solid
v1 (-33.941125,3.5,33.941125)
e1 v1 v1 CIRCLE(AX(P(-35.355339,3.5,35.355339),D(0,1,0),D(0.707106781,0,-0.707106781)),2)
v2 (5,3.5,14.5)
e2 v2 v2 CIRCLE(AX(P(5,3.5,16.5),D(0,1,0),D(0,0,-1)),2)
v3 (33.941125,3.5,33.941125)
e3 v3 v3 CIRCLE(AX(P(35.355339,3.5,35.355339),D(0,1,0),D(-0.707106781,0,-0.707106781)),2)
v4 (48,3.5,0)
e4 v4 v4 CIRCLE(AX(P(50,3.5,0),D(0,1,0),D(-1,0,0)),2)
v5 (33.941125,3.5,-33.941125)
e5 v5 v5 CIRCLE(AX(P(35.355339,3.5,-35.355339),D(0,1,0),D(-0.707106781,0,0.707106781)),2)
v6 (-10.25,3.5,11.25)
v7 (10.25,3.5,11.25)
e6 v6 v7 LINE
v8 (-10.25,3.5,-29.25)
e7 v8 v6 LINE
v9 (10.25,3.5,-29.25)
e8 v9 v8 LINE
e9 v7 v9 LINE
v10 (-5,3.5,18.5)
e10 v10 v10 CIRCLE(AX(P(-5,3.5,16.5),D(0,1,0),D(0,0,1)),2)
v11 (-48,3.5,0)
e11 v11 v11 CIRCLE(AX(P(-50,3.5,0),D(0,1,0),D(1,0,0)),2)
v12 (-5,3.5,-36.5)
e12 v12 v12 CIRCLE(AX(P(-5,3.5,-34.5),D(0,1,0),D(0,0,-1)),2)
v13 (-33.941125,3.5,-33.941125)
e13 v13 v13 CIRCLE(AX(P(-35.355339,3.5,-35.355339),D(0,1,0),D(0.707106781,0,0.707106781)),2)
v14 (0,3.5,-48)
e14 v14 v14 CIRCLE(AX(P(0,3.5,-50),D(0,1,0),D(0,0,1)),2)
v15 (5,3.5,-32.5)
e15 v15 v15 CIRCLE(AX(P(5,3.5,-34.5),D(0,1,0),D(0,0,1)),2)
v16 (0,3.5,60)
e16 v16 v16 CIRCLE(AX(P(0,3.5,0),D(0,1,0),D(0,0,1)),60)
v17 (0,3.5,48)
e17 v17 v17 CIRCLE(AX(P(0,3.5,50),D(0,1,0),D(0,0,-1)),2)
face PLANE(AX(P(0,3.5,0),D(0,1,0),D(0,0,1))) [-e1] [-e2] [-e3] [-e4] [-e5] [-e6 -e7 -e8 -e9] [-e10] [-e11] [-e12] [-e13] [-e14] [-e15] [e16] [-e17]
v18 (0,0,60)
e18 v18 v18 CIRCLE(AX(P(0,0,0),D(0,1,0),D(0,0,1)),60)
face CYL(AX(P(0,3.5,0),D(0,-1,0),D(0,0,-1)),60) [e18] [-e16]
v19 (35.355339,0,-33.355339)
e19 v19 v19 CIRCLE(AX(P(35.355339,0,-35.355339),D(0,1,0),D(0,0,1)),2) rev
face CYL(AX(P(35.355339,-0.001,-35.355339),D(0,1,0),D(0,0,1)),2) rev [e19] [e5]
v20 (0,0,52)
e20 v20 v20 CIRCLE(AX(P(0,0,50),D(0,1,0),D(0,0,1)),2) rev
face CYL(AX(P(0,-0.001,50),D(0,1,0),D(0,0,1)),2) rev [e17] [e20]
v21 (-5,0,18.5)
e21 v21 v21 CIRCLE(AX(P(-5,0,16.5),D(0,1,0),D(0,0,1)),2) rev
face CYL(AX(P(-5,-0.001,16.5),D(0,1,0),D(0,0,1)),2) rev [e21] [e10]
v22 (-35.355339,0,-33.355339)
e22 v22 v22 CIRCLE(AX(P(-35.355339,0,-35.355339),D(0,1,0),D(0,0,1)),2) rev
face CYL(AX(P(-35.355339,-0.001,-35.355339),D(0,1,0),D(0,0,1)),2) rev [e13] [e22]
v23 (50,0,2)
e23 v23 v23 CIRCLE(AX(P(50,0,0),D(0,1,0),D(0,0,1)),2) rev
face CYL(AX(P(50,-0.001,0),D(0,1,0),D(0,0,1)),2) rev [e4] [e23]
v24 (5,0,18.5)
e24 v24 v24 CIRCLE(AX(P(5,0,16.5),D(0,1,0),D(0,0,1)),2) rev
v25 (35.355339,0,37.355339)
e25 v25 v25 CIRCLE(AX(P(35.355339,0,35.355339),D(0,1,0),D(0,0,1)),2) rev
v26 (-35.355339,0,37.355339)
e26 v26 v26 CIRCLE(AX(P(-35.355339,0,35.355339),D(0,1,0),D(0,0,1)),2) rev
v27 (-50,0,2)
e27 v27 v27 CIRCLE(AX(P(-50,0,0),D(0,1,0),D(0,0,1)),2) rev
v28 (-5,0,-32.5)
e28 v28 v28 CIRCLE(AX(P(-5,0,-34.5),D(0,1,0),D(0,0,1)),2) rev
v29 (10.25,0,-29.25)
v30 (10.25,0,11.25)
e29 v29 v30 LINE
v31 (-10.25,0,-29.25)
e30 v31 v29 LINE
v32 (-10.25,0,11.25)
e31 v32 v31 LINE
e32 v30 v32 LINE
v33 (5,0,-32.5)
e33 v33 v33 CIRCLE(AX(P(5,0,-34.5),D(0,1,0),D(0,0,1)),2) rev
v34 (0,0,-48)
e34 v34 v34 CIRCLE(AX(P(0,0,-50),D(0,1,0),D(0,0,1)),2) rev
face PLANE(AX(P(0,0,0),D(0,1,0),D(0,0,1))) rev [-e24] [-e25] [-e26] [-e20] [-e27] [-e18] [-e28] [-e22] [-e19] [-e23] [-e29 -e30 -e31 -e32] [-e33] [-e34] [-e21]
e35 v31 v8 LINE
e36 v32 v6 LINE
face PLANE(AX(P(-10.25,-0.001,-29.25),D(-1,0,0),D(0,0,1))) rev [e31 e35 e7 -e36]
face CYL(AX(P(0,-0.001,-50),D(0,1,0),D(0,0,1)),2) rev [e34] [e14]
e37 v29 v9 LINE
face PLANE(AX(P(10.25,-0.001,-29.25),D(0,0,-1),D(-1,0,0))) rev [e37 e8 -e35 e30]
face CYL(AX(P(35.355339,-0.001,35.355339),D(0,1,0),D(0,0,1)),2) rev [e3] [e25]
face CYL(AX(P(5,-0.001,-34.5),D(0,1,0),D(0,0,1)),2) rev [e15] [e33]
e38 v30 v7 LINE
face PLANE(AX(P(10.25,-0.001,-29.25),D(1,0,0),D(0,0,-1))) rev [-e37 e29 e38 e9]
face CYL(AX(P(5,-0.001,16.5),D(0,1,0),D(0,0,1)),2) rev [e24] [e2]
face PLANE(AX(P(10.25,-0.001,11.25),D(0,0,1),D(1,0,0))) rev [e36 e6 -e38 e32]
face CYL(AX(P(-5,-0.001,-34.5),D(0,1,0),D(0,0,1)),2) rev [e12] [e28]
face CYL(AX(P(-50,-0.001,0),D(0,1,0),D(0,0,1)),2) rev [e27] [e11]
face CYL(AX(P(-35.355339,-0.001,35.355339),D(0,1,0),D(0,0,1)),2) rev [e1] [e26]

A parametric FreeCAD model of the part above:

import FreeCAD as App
import Part
import Sketcher

V = App.Vector

doc = App.newDocument("Part")
body = doc.addObject("PartDesign::Body", "Body")

sketch1 = body.newObject("Sketcher::SketchObject", "Sketch")
sketch1.AttachmentSupport = (doc.getObject("XZ_Plane"), [""])
sketch1.MapMode = "FlatFace"
sketch1.addGeometry(Part.Circle(V(0, 0, 0), V(0, 0, 1), 60), False)
sketch1.addConstraint([
    Sketcher.Constraint("Coincident", 0, 3, -1, 1),
    Sketcher.Constraint("Diameter", 0, 120.0),
])
pad1 = body.newObject("PartDesign::Pad", "Pad")
pad1.Profile = sketch1
pad1.Length = 3.5
pad1.Reversed = True

sketch2 = body.newObject("Sketcher::SketchObject", "Sketch001")
sketch2.AttachmentSupport = (doc.getObject("XZ_Plane"), [""])
sketch2.MapMode = "FlatFace"
sketch2.AttachmentOffset = App.Placement(V(0, 0, -3.5), App.Rotation())
sketch2.addGeometry(Part.Circle(V(0, -50, 0), V(0, 0, 1), 2), False)
sketch2.addConstraint([
    Sketcher.Constraint("PointOnObject", 0, 3, -2),
    Sketcher.Constraint("Diameter", 0, 4.0),
    Sketcher.Constraint("DistanceY", 0, 3, -1, 1, 50.0),
])
pocket1 = body.newObject("PartDesign::Pocket", "Pocket")
pocket1.Profile = sketch2
pocket1.Length = 3.5
pocket1.Reversed = True
doc.recompute()

polarpattern = body.newObject("PartDesign::PolarPattern", "PolarPattern")
polarpattern.Originals = [pocket1]
polarpattern.Axis = (doc.getObject("Y_Axis"), [""])
polarpattern.Angle = 360
polarpattern.Occurrences = 8
body.Tip = polarpattern

sketch3 = body.newObject("Sketcher::SketchObject", "Sketch002")
sketch3.AttachmentSupport = (doc.getObject("XZ_Plane"), [""])
sketch3.MapMode = "FlatFace"
sketch3.AttachmentOffset = App.Placement(V(0, 0, -3.5), App.Rotation())
sketch3.addGeometry([
    Part.LineSegment(V(-10, -29, 0), V(-10, 11, 0)),
    Part.LineSegment(V(-10, 11, 0), V(10, 11, 0)),
    Part.LineSegment(V(10, 11, 0), V(10, -29, 0)),
    Part.LineSegment(V(10, -29, 0), V(-10, -29, 0)),
], False)
sketch3.addConstraint([
    Sketcher.Constraint("Coincident", 0, 2, 1, 1),
    Sketcher.Constraint("Coincident", 1, 2, 2, 1),
    Sketcher.Constraint("Coincident", 2, 2, 3, 1),
    Sketcher.Constraint("Coincident", 3, 2, 0, 1),
    Sketcher.Constraint("Vertical", 0),
    Sketcher.Constraint("Horizontal", 1),
    Sketcher.Constraint("Vertical", 2),
    Sketcher.Constraint("Horizontal", 3),
    Sketcher.Constraint("DistanceX", 1, 1, 1, 2, 20.5),
    Sketcher.Constraint("DistanceY", 0, 1, 0, 2, 40.5),
    Sketcher.Constraint("DistanceX", 0, 2, -1, 1, 10.25),
    Sketcher.Constraint("DistanceY", -1, 1, 0, 2, 11.25),
])
pocket2 = body.newObject("PartDesign::Pocket", "Pocket001")
pocket2.Profile = sketch3
pocket2.Type = "UpToFirst"
pocket2.Reversed = True

sketch4 = body.newObject("Sketcher::SketchObject", "Sketch003")
sketch4.AttachmentSupport = (doc.getObject("XZ_Plane"), [""])
sketch4.MapMode = "FlatFace"
sketch4.AttachmentOffset = App.Placement(V(0, 0, -3.5), App.Rotation())
sketch4.addGeometry(Part.Circle(V(5, -34.5, 0), V(0, 0, 1), 2), False)
sketch4.addConstraint([
    Sketcher.Constraint("Diameter", 0, 4.0),
    Sketcher.Constraint("DistanceX", -1, 1, 0, 3, 5.0),
    Sketcher.Constraint("DistanceY", 0, 3, -1, 1, 34.5),
])
pocket3 = body.newObject("PartDesign::Pocket", "Pocket002")
pocket3.Profile = sketch4
pocket3.Type = "UpToFirst"
pocket3.Reversed = True

sketch5 = body.newObject("Sketcher::SketchObject", "Sketch004")
sketch5.AttachmentSupport = (doc.getObject("XZ_Plane"), [""])
sketch5.MapMode = "FlatFace"
sketch5.AttachmentOffset = App.Placement(V(0, 0, -3.5), App.Rotation())
sketch5.addGeometry(Part.Circle(V(-5, -34.5, 0), V(0, 0, 1), 2), False)
sketch5.addConstraint([
    Sketcher.Constraint("Diameter", 0, 4.0),
    Sketcher.Constraint("DistanceX", 0, 3, -1, 1, 5.0),
    Sketcher.Constraint("DistanceY", 0, 3, -1, 1, 34.5),
])
pocket4 = body.newObject("PartDesign::Pocket", "Pocket003")
pocket4.Profile = sketch5
pocket4.Type = "UpToFirst"
pocket4.Reversed = True

sketch6 = body.newObject("Sketcher::SketchObject", "Sketch005")
sketch6.AttachmentSupport = (doc.getObject("XZ_Plane"), [""])
sketch6.MapMode = "FlatFace"
sketch6.AttachmentOffset = App.Placement(V(0, 0, -3.5), App.Rotation())
sketch6.addGeometry(Part.Circle(V(-5, 16.5, 0), V(0, 0, 1), 2), False)
sketch6.addConstraint([
    Sketcher.Constraint("Diameter", 0, 4.0),
    Sketcher.Constraint("DistanceX", 0, 3, -1, 1, 5.0),
    Sketcher.Constraint("DistanceY", -1, 1, 0, 3, 16.5),
])
pocket5 = body.newObject("PartDesign::Pocket", "Pocket004")
pocket5.Profile = sketch6
pocket5.Type = "UpToFirst"
pocket5.Reversed = True

sketch7 = body.newObject("Sketcher::SketchObject", "Sketch006")
sketch7.AttachmentSupport = (doc.getObject("XZ_Plane"), [""])
sketch7.MapMode = "FlatFace"
sketch7.AttachmentOffset = App.Placement(V(0, 0, -3.5), App.Rotation())
sketch7.addGeometry(Part.Circle(V(5, 16.5, 0), V(0, 0, 1), 2), False)
sketch7.addConstraint([
    Sketcher.Constraint("Diameter", 0, 4.0),
    Sketcher.Constraint("DistanceX", -1, 1, 0, 3, 5.0),
    Sketcher.Constraint("DistanceY", -1, 1, 0, 3, 16.5),
])
pocket6 = body.newObject("PartDesign::Pocket", "Pocket005")
pocket6.Profile = sketch7
pocket6.Type = "UpToFirst"
pocket6.Reversed = True

doc.recompute()
